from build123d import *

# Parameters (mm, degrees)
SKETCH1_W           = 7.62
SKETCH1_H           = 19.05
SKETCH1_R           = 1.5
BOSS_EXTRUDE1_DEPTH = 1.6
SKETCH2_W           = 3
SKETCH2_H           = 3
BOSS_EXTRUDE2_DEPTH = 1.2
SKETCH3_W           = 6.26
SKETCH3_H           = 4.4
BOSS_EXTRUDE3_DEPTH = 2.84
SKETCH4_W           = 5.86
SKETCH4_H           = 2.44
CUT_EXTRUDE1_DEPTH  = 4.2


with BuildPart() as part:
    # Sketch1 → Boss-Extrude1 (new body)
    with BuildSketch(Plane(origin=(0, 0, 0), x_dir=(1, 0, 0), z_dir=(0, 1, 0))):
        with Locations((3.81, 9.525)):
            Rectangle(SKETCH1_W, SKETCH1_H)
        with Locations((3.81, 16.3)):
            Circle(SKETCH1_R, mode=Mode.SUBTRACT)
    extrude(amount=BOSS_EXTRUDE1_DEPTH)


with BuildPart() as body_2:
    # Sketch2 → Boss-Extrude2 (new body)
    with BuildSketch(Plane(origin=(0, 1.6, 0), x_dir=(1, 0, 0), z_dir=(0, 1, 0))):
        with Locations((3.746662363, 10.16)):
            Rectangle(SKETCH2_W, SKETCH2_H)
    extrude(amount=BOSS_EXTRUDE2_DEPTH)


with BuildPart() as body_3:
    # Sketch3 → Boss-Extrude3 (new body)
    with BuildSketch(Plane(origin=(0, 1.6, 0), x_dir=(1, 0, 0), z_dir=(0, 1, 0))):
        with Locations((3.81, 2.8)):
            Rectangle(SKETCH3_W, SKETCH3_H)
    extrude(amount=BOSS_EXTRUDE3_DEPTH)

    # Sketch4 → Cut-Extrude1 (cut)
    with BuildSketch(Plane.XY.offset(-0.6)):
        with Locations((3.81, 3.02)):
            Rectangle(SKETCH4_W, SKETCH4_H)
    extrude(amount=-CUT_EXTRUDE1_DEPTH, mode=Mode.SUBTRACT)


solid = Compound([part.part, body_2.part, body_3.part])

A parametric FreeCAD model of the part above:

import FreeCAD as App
import Part
import Sketcher

V = App.Vector
Q = App.Units.Quantity


def add_polygon(sketch, points):
    """Adds a closed chain of lines whose ends are joined by coincident constraints."""
    first, n = sketch.GeometryCount, len(points)
    for a, b in zip(points, points[1:] + points[:1]):
        sketch.addGeometry(Part.LineSegment(App.Vector(*a, 0), App.Vector(*b, 0)), False)
    for i in range(n):
        sketch.addConstraint(Sketcher.Constraint("Coincident", first + i, 2, first + (i + 1) % n, 1))

doc = App.newDocument("Part")
params = doc.addObject("Spreadsheet::Sheet", "Params")
for row, (alias, value) in enumerate([
    ("sketch1_diameter", "3 mm"),
    ("sketch1_width", "7.62 mm"),
    ("sketch1_height", "19.05 mm"),
    ("pad1_length", "1.6 mm"),
    ("sketch2_width", "3 mm"),
    ("pad2_length", "1.2 mm"),
    ("sketch3_height", "4.4 mm"),
    ("sketch3_width", "6.26 mm"),
    ("pad3_length", "2.84 mm"),
    ("sketch4_width", "5.86 mm"),
    ("sketch4_height", "2.44 mm"),
    ("pocket1_length", "4.2 mm"),
], start=1):
    params.set(f"A{row}", alias)
    params.set(f"B{row}", "=" + value)
    params.setAlias(f"B{row}", alias)

body = doc.addObject("PartDesign::Body", "Body")

# Sketch on XZ plane
sketch1 = body.newObject("Sketcher::SketchObject", "Sketch")
sketch1.AttachmentSupport = (doc.getObject("XZ_Plane"), [""])
sketch1.MapMode = "FlatFace"
add_polygon(sketch1, [(0, -19.05), (0, 0), (7.62, 0), (7.62, -19.05)])  # lines 0-3
sketch1.addGeometry(Part.Circle(V(3.81, -16.3, 0), V(0, 0, 1), 1.5), False)  # 4
sketch1.addConstraint(Sketcher.Constraint("Vertical", 0))
sketch1.addConstraint(Sketcher.Constraint("Horizontal", 1))
sketch1.addConstraint(Sketcher.Constraint("Vertical", 2))
sketch1.addConstraint(Sketcher.Constraint("Horizontal", 3))
sketch1.addConstraint(Sketcher.Constraint("Coincident", 0, 2, -1, 1))
sketch1.addConstraint(Sketcher.Constraint("Diameter", 4, Q("3 mm")))
sketch1.addConstraint(Sketcher.Constraint("DistanceX", 1, 1, 1, 2, Q("7.62 mm")))
sketch1.addConstraint(Sketcher.Constraint("DistanceY", 0, 1, 0, 2, Q("19.05 mm")))
sketch1.addConstraint(Sketcher.Constraint("DistanceY", 4, 3, -1, 1, Q("16.3 mm")))
sketch1.addConstraint(Sketcher.Constraint("DistanceX", -1, 1, 4, 3, Q("3.81 mm")))
sketch1.setExpression("Constraints[9]", "Params.sketch1_diameter")
sketch1.setExpression("Constraints[10]", "Params.sketch1_width")
sketch1.setExpression("Constraints[11]", "Params.sketch1_height")
pad1 = body.newObject("PartDesign::Pad", "Pad")
pad1.Profile = sketch1
pad1.setExpression("Length", "Params.pad1_length")
pad1.Reversed = True
body2 = doc.addObject("PartDesign::Body", "Body001")

# Sketch on XZ plane
sketch2 = body2.newObject("Sketcher::SketchObject", "Sketch001")
sketch2.AttachmentSupport = (doc.getObject("XZ_Plane001"), [""])
sketch2.MapMode = "FlatFace"
sketch2.AttachmentOffset = App.Placement(V(0, 0, -1.6), App.Rotation())
add_polygon(sketch2, [(2.246662, -11.66), (2.246662, -8.66), (5.246662, -8.66), (5.246662, -11.66)])  # lines 0-3
sketch2.addConstraint(Sketcher.Constraint("Vertical", 0))
sketch2.addConstraint(Sketcher.Constraint("Horizontal", 1))
sketch2.addConstraint(Sketcher.Constraint("Vertical", 2))
sketch2.addConstraint(Sketcher.Constraint("Horizontal", 3))
sketch2.addConstraint(Sketcher.Constraint("Equal", 3, 0))
sketch2.addConstraint(Sketcher.Constraint("DistanceX", 1, 1, 1, 2, Q("3 mm")))
sketch2.addConstraint(Sketcher.Constraint("DistanceY", 0, 2, -1, 1, Q("8.66 mm")))
sketch2.addConstraint(Sketcher.Constraint("DistanceX", -1, 1, 0, 2, Q("2.246662 mm")))
sketch2.setExpression("Constraints[9]", "Params.sketch2_width")
pad2 = body2.newObject("PartDesign::Pad", "Pad001")
pad2.Profile = sketch2
pad2.setExpression("Length", "Params.pad2_length")
pad2.Reversed = True
body3 = doc.addObject("PartDesign::Body", "Body002")

# Sketch on XZ plane
sketch3 = body3.newObject("Sketcher::SketchObject", "Sketch002")
sketch3.AttachmentSupport = (doc.getObject("XZ_Plane002"), [""])
sketch3.MapMode = "FlatFace"
sketch3.AttachmentOffset = App.Placement(V(0, 0, -1.6), App.Rotation())
add_polygon(sketch3, [(0.68, -5), (0.68, -0.6), (6.94, -0.6), (6.94, -5)])  # lines 0-3
sketch3.addConstraint(Sketcher.Constraint("Vertical", 0))
sketch3.addConstraint(Sketcher.Constraint("Horizontal", 1))
sketch3.addConstraint(Sketcher.Constraint("Vertical", 2))
sketch3.addConstraint(Sketcher.Constraint("Horizontal", 3))
sketch3.addConstraint(Sketcher.Constraint("DistanceY", 0, 1, 0, 2, Q("4.4 mm")))
sketch3.addConstraint(Sketcher.Constraint("DistanceY", 2, 2, -1, 1, Q("5 mm")))
sketch3.addConstraint(Sketcher.Constraint("DistanceX", 1, 1, 1, 2, Q("6.26 mm")))
sketch3.addConstraint(Sketcher.Constraint("DistanceX", -1, 1, 0, 2, Q("0.68 mm")))
sketch3.setExpression("Constraints[8]", "Params.sketch3_height")
sketch3.setExpression("Constraints[10]", "Params.sketch3_width")
pad3 = body3.newObject("PartDesign::Pad", "Pad002")
pad3.Profile = sketch3
pad3.setExpression("Length", "Params.pad3_length")
pad3.Reversed = True

# Sketch on XY plane
sketch4 = body3.newObject("Sketcher::SketchObject", "Sketch003")
sketch4.AttachmentSupport = (doc.getObject("XY_Plane002"), [""])
sketch4.MapMode = "FlatFace"
sketch4.AttachmentOffset = App.Placement(V(0, 0, -0.6), App.Rotation())
add_polygon(sketch4, [(0.88, 4.24), (0.88, 1.8), (6.74, 1.8), (6.74, 4.24)])  # lines 0-3
sketch4.addConstraint(Sketcher.Constraint("Vertical", 0))
sketch4.addConstraint(Sketcher.Constraint("Horizontal", 1))
sketch4.addConstraint(Sketcher.Constraint("Vertical", 2))
sketch4.addConstraint(Sketcher.Constraint("Horizontal", 3))
sketch4.addConstraint(Sketcher.Constraint("DistanceX", 1, 1, 1, 2, Q("5.86 mm")))
sketch4.addConstraint(Sketcher.Constraint("DistanceY", 0, 2, 0, 1, Q("2.44 mm")))
sketch4.addConstraint(Sketcher.Constraint("DistanceY", -1, 1, 0, 2, Q("1.8 mm")))
sketch4.addConstraint(Sketcher.Constraint("DistanceX", -1, 1, 0, 2, Q("0.88 mm")))
sketch4.setExpression("Constraints[8]", "Params.sketch4_width")
sketch4.setExpression("Constraints[9]", "Params.sketch4_height")
pocket1 = body3.newObject("PartDesign::Pocket", "Pocket")
pocket1.Profile = sketch4
pocket1.setExpression("Length", "Params.pocket1_length")

doc.recompute()
